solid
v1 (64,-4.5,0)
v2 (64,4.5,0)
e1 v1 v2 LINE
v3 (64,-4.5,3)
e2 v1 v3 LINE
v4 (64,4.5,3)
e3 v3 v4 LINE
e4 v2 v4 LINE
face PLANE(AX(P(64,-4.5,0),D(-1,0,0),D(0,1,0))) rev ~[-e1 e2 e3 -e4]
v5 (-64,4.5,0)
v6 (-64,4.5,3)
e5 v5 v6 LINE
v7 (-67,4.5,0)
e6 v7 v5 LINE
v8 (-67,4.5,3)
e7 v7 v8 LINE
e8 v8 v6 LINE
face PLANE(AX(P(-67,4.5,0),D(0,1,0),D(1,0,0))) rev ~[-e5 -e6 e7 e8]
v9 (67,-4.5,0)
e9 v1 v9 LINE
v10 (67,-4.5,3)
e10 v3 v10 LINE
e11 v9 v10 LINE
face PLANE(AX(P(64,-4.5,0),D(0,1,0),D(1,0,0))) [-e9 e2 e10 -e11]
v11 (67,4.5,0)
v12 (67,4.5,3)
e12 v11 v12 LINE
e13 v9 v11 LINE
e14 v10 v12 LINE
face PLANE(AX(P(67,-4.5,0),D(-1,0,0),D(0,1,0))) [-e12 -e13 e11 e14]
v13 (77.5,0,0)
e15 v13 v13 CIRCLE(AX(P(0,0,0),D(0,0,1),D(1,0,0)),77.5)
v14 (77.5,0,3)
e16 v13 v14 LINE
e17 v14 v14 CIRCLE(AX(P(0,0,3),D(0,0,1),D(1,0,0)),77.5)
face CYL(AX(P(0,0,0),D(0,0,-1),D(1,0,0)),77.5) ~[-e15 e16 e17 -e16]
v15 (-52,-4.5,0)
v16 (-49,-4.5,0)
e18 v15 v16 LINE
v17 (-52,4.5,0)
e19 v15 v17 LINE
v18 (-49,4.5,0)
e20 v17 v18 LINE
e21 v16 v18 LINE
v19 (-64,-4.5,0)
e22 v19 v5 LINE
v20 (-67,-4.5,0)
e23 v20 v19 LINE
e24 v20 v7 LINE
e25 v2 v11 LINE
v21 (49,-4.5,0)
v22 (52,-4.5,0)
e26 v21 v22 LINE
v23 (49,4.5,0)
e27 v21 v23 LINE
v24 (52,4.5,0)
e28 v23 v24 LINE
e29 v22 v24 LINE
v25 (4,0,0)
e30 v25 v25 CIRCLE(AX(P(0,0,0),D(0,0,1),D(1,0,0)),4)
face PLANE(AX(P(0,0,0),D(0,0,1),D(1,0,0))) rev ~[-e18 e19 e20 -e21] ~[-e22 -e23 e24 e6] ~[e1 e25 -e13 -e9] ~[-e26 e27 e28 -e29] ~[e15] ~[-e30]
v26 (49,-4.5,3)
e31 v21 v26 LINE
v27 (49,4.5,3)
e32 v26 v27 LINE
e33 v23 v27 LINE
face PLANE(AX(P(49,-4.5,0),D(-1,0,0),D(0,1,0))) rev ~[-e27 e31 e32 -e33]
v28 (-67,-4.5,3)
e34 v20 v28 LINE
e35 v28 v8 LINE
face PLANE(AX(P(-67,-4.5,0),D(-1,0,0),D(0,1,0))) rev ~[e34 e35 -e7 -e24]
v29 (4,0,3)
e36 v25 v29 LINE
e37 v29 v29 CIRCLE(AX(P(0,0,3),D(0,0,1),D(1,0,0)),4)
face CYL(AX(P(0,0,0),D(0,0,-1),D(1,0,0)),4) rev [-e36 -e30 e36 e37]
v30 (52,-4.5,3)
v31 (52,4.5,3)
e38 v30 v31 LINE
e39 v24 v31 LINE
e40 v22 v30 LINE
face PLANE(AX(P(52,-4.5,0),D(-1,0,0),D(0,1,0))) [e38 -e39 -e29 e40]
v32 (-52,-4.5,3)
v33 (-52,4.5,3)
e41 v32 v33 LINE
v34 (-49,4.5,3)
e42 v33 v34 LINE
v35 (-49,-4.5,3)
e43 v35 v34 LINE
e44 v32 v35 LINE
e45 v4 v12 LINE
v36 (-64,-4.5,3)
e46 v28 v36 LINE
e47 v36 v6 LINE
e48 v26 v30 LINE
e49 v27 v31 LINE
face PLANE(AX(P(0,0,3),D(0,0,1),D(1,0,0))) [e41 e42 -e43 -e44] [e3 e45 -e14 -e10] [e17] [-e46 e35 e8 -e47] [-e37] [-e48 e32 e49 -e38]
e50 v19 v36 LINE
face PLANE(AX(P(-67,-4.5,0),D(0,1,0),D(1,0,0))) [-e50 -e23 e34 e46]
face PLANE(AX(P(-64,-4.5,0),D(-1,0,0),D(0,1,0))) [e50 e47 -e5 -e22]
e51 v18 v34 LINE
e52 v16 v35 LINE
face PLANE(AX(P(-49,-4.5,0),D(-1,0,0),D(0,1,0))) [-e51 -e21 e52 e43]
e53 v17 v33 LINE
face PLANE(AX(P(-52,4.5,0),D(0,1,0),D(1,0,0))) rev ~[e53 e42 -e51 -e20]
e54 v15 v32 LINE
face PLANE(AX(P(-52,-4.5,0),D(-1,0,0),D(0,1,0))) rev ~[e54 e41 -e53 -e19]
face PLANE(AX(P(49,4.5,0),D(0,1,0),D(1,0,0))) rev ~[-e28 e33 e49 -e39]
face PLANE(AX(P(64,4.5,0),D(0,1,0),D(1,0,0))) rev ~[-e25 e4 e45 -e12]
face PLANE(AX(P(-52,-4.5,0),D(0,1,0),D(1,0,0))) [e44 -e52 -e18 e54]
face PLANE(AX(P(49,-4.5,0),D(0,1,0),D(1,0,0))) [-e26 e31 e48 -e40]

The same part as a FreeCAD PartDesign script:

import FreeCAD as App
import Part
import Sketcher
Q = App.Units.Quantity


def add_polygon(sketch, points):
    """Adds a closed chain of lines whose ends are joined by coincident constraints."""
    first, n = sketch.GeometryCount, len(points)
    for a, b in zip(points, points[1:] + points[:1]):
        sketch.addGeometry(Part.LineSegment(App.Vector(*a, 0), App.Vector(*b, 0)), False)
    for i in range(n):
        sketch.addConstraint(Sketcher.Constraint("Coincident", first + i, 2, first + (i + 1) % n, 1))

doc = App.newDocument("Part")
params = doc.addObject("Spreadsheet::Sheet", "Params")
for row, (alias, value) in enumerate([
    ("sketch1_width", "3 mm"),
    ("sketch1_height", "9 mm"),
    ("pad1_length", "3 mm"),
    ("sketch2_width", "3 mm"),
    ("sketch2_height", "9 mm"),
    ("pad2_length", "3 mm"),
    ("sketch3_width", "3 mm"),
    ("sketch3_height", "9 mm"),
    ("pad3_length", "3 mm"),
    ("sketch4_width", "3 mm"),
    ("sketch4_height", "9 mm"),
    ("pad4_length", "3 mm"),
    ("sketch5_diameter", "8 mm"),
    ("pad5_length", "3 mm"),
    ("sketch6_diameter", "155 mm"),
    ("pad6_length", "3 mm"),
], start=1):
    params.set(f"A{row}", alias)
    params.set(f"B{row}", "=" + value)
    params.setAlias(f"B{row}", alias)

body = doc.addObject("PartDesign::Body", "Body")

sketch1 = doc.addObject("Sketcher::SketchObject", "Sketch")
body.addObject(sketch1)
sketch1.AttachmentSupport = (doc.XY_Plane, [""])
sketch1.MapMode = "FlatFace"
add_polygon(sketch1, [(49, 4.5), (49, -4.5), (52, -4.5), (52, 4.5)])
sketch1.addConstraint([
    Sketcher.Constraint("Vertical", 0),
    Sketcher.Constraint("Horizontal", 1),
    Sketcher.Constraint("Vertical", 2),
    Sketcher.Constraint("Horizontal", 3),
    Sketcher.Constraint("DistanceX", 1, 1, 1, 2, Q("3 mm")),
    Sketcher.Constraint("DistanceY", 0, 2, 0, 1, Q("9 mm")),
    Sketcher.Constraint("DistanceX", -1, 1, 0, 2, Q("49 mm")),
    Sketcher.Constraint("DistanceY", 0, 2, -1, 1, Q("4.5 mm")),
])
sketch1.setExpression("Constraints[8]", "Params.sketch1_width")
sketch1.setExpression("Constraints[9]", "Params.sketch1_height")
pad1 = doc.addObject("PartDesign::Pad", "Pad")
body.addObject(pad1)
pad1.Profile = sketch1
pad1.setExpression("Length", "Params.pad1_length")
body2 = doc.addObject("PartDesign::Body", "Body001")

sketch2 = doc.addObject("Sketcher::SketchObject", "Sketch001")
body2.addObject(sketch2)
sketch2.AttachmentSupport = (doc.getObject("XY_Plane001"), [""])
sketch2.MapMode = "FlatFace"
add_polygon(sketch2, [(64, 4.5), (64, -4.5), (67, -4.5), (67, 4.5)])
sketch2.addConstraint([
    Sketcher.Constraint("Vertical", 0),
    Sketcher.Constraint("Horizontal", 1),
    Sketcher.Constraint("Vertical", 2),
    Sketcher.Constraint("Horizontal", 3),
    Sketcher.Constraint("DistanceX", 1, 1, 1, 2, Q("3 mm")),
    Sketcher.Constraint("DistanceY", 0, 2, 0, 1, Q("9 mm")),
    Sketcher.Constraint("DistanceX", -1, 1, 0, 2, Q("64 mm")),
    Sketcher.Constraint("DistanceY", 0, 2, -1, 1, Q("4.5 mm")),
])
sketch2.setExpression("Constraints[8]", "Params.sketch2_width")
sketch2.setExpression("Constraints[9]", "Params.sketch2_height")
pad2 = doc.addObject("PartDesign::Pad", "Pad001")
body2.addObject(pad2)
pad2.Profile = sketch2
pad2.setExpression("Length", "Params.pad2_length")
body3 = doc.addObject("PartDesign::Body", "Body002")

sketch3 = doc.addObject("Sketcher::SketchObject", "Sketch002")
body3.addObject(sketch3)
sketch3.AttachmentSupport = (doc.getObject("XY_Plane002"), [""])
sketch3.MapMode = "FlatFace"
add_polygon(sketch3, [(-52, 4.5), (-52, -4.5), (-49, -4.5), (-49, 4.5)])
sketch3.addConstraint([
    Sketcher.Constraint("Vertical", 0),
    Sketcher.Constraint("Horizontal", 1),
    Sketcher.Constraint("Vertical", 2),
    Sketcher.Constraint("Horizontal", 3),
    Sketcher.Constraint("DistanceX", 1, 1, 1, 2, Q("3 mm")),
    Sketcher.Constraint("DistanceY", 0, 2, 0, 1, Q("9 mm")),
    Sketcher.Constraint("DistanceX", 0, 2, -1, 1, Q("52 mm")),
    Sketcher.Constraint("DistanceY", 0, 2, -1, 1, Q("4.5 mm")),
])
sketch3.setExpression("Constraints[8]", "Params.sketch3_width")
sketch3.setExpression("Constraints[9]", "Params.sketch3_height")
pad3 = doc.addObject("PartDesign::Pad", "Pad002")
body3.addObject(pad3)
pad3.Profile = sketch3
pad3.setExpression("Length", "Params.pad3_length")
body4 = doc.addObject("PartDesign::Body", "Body003")

sketch4 = doc.addObject("Sketcher::SketchObject", "Sketch003")
body4.addObject(sketch4)
sketch4.AttachmentSupport = (doc.getObject("XY_Plane003"), [""])
sketch4.MapMode = "FlatFace"
add_polygon(sketch4, [(-67, 4.5), (-67, -4.5), (-64, -4.5), (-64, 4.5)])
sketch4.addConstraint([
    Sketcher.Constraint("Vertical", 0),
    Sketcher.Constraint("Horizontal", 1),
    Sketcher.Constraint("Vertical", 2),
    Sketcher.Constraint("Horizontal", 3),
    Sketcher.Constraint("DistanceX", 1, 1, 1, 2, Q("3 mm")),
    Sketcher.Constraint("DistanceY", 0, 2, 0, 1, Q("9 mm")),
    Sketcher.Constraint("DistanceX", 0, 2, -1, 1, Q("67 mm")),
    Sketcher.Constraint("DistanceY", 0, 2, -1, 1, Q("4.5 mm")),
])
sketch4.setExpression("Constraints[8]", "Params.sketch4_width")
sketch4.setExpression("Constraints[9]", "Params.sketch4_height")
pad4 = doc.addObject("PartDesign::Pad", "Pad003")
body4.addObject(pad4)
pad4.Profile = sketch4
pad4.setExpression("Length", "Params.pad4_length")
body5 = doc.addObject("PartDesign::Body", "Body004")

sketch5 = doc.addObject("Sketcher::SketchObject", "Sketch004")
body5.addObject(sketch5)
sketch5.AttachmentSupport = (doc.getObject("XY_Plane004"), [""])
sketch5.MapMode = "FlatFace"
sketch5.addGeometry(Part.Circle(App.Vector(0, 0, 0), App.Vector(0, 0, 1), 4), False)
sketch5.addConstraint([
    Sketcher.Constraint("Coincident", 0, 3, -1, 1),
    Sketcher.Constraint("Diameter", 0, Q("8 mm")),
])
sketch5.setExpression("Constraints[1]", "Params.sketch5_diameter")
pad5 = doc.addObject("PartDesign::Pad", "Pad004")
body5.addObject(pad5)
pad5.Profile = sketch5
pad5.setExpression("Length", "Params.pad5_length")
body6 = doc.addObject("PartDesign::Body", "Body005")

sketch6 = doc.addObject("Sketcher::SketchObject", "Sketch005")
body6.addObject(sketch6)
sketch6.AttachmentSupport = (doc.getObject("XY_Plane005"), [""])
sketch6.MapMode = "FlatFace"
sketch6.addGeometry(Part.Circle(App.Vector(0, 0, 0), App.Vector(0, 0, 1), 78), False)
sketch6.addConstraint([
    Sketcher.Constraint("Coincident", 0, 3, -1, 1),
    Sketcher.Constraint("Diameter", 0, Q("155 mm")),
])
sketch6.setExpression("Constraints[1]", "Params.sketch6_diameter")
pad6 = doc.addObject("PartDesign::Pad", "Pad005")
body6.addObject(pad6)
pad6.Profile = sketch6
pad6.setExpression("Length", "Params.pad6_length")
doc.recompute()

boolean = doc.addObject("PartDesign::Boolean", "Boolean")
body6.addObject(boolean)
boolean.Type = "Cut"
boolean.addObjects([body5])
doc.recompute()

boolean2 = doc.addObject("PartDesign::Boolean", "Boolean001")
body6.addObject(boolean2)
boolean2.Type = "Cut"
boolean2.addObjects([body4])
doc.recompute()

boolean3 = doc.addObject("PartDesign::Boolean", "Boolean002")
body6.addObject(boolean3)
boolean3.Type = "Cut"
boolean3.addObjects([body3])
doc.recompute()

boolean4 = doc.addObject("PartDesign::Boolean", "Boolean003")
body6.addObject(boolean4)
boolean4.Type = "Cut"
boolean4.addObjects([body2])
doc.recompute()

boolean5 = doc.addObject("PartDesign::Boolean", "Boolean004")
body6.addObject(boolean5)
boolean5.Type = "Cut"
boolean5.addObjects([body])

doc.recompute()
